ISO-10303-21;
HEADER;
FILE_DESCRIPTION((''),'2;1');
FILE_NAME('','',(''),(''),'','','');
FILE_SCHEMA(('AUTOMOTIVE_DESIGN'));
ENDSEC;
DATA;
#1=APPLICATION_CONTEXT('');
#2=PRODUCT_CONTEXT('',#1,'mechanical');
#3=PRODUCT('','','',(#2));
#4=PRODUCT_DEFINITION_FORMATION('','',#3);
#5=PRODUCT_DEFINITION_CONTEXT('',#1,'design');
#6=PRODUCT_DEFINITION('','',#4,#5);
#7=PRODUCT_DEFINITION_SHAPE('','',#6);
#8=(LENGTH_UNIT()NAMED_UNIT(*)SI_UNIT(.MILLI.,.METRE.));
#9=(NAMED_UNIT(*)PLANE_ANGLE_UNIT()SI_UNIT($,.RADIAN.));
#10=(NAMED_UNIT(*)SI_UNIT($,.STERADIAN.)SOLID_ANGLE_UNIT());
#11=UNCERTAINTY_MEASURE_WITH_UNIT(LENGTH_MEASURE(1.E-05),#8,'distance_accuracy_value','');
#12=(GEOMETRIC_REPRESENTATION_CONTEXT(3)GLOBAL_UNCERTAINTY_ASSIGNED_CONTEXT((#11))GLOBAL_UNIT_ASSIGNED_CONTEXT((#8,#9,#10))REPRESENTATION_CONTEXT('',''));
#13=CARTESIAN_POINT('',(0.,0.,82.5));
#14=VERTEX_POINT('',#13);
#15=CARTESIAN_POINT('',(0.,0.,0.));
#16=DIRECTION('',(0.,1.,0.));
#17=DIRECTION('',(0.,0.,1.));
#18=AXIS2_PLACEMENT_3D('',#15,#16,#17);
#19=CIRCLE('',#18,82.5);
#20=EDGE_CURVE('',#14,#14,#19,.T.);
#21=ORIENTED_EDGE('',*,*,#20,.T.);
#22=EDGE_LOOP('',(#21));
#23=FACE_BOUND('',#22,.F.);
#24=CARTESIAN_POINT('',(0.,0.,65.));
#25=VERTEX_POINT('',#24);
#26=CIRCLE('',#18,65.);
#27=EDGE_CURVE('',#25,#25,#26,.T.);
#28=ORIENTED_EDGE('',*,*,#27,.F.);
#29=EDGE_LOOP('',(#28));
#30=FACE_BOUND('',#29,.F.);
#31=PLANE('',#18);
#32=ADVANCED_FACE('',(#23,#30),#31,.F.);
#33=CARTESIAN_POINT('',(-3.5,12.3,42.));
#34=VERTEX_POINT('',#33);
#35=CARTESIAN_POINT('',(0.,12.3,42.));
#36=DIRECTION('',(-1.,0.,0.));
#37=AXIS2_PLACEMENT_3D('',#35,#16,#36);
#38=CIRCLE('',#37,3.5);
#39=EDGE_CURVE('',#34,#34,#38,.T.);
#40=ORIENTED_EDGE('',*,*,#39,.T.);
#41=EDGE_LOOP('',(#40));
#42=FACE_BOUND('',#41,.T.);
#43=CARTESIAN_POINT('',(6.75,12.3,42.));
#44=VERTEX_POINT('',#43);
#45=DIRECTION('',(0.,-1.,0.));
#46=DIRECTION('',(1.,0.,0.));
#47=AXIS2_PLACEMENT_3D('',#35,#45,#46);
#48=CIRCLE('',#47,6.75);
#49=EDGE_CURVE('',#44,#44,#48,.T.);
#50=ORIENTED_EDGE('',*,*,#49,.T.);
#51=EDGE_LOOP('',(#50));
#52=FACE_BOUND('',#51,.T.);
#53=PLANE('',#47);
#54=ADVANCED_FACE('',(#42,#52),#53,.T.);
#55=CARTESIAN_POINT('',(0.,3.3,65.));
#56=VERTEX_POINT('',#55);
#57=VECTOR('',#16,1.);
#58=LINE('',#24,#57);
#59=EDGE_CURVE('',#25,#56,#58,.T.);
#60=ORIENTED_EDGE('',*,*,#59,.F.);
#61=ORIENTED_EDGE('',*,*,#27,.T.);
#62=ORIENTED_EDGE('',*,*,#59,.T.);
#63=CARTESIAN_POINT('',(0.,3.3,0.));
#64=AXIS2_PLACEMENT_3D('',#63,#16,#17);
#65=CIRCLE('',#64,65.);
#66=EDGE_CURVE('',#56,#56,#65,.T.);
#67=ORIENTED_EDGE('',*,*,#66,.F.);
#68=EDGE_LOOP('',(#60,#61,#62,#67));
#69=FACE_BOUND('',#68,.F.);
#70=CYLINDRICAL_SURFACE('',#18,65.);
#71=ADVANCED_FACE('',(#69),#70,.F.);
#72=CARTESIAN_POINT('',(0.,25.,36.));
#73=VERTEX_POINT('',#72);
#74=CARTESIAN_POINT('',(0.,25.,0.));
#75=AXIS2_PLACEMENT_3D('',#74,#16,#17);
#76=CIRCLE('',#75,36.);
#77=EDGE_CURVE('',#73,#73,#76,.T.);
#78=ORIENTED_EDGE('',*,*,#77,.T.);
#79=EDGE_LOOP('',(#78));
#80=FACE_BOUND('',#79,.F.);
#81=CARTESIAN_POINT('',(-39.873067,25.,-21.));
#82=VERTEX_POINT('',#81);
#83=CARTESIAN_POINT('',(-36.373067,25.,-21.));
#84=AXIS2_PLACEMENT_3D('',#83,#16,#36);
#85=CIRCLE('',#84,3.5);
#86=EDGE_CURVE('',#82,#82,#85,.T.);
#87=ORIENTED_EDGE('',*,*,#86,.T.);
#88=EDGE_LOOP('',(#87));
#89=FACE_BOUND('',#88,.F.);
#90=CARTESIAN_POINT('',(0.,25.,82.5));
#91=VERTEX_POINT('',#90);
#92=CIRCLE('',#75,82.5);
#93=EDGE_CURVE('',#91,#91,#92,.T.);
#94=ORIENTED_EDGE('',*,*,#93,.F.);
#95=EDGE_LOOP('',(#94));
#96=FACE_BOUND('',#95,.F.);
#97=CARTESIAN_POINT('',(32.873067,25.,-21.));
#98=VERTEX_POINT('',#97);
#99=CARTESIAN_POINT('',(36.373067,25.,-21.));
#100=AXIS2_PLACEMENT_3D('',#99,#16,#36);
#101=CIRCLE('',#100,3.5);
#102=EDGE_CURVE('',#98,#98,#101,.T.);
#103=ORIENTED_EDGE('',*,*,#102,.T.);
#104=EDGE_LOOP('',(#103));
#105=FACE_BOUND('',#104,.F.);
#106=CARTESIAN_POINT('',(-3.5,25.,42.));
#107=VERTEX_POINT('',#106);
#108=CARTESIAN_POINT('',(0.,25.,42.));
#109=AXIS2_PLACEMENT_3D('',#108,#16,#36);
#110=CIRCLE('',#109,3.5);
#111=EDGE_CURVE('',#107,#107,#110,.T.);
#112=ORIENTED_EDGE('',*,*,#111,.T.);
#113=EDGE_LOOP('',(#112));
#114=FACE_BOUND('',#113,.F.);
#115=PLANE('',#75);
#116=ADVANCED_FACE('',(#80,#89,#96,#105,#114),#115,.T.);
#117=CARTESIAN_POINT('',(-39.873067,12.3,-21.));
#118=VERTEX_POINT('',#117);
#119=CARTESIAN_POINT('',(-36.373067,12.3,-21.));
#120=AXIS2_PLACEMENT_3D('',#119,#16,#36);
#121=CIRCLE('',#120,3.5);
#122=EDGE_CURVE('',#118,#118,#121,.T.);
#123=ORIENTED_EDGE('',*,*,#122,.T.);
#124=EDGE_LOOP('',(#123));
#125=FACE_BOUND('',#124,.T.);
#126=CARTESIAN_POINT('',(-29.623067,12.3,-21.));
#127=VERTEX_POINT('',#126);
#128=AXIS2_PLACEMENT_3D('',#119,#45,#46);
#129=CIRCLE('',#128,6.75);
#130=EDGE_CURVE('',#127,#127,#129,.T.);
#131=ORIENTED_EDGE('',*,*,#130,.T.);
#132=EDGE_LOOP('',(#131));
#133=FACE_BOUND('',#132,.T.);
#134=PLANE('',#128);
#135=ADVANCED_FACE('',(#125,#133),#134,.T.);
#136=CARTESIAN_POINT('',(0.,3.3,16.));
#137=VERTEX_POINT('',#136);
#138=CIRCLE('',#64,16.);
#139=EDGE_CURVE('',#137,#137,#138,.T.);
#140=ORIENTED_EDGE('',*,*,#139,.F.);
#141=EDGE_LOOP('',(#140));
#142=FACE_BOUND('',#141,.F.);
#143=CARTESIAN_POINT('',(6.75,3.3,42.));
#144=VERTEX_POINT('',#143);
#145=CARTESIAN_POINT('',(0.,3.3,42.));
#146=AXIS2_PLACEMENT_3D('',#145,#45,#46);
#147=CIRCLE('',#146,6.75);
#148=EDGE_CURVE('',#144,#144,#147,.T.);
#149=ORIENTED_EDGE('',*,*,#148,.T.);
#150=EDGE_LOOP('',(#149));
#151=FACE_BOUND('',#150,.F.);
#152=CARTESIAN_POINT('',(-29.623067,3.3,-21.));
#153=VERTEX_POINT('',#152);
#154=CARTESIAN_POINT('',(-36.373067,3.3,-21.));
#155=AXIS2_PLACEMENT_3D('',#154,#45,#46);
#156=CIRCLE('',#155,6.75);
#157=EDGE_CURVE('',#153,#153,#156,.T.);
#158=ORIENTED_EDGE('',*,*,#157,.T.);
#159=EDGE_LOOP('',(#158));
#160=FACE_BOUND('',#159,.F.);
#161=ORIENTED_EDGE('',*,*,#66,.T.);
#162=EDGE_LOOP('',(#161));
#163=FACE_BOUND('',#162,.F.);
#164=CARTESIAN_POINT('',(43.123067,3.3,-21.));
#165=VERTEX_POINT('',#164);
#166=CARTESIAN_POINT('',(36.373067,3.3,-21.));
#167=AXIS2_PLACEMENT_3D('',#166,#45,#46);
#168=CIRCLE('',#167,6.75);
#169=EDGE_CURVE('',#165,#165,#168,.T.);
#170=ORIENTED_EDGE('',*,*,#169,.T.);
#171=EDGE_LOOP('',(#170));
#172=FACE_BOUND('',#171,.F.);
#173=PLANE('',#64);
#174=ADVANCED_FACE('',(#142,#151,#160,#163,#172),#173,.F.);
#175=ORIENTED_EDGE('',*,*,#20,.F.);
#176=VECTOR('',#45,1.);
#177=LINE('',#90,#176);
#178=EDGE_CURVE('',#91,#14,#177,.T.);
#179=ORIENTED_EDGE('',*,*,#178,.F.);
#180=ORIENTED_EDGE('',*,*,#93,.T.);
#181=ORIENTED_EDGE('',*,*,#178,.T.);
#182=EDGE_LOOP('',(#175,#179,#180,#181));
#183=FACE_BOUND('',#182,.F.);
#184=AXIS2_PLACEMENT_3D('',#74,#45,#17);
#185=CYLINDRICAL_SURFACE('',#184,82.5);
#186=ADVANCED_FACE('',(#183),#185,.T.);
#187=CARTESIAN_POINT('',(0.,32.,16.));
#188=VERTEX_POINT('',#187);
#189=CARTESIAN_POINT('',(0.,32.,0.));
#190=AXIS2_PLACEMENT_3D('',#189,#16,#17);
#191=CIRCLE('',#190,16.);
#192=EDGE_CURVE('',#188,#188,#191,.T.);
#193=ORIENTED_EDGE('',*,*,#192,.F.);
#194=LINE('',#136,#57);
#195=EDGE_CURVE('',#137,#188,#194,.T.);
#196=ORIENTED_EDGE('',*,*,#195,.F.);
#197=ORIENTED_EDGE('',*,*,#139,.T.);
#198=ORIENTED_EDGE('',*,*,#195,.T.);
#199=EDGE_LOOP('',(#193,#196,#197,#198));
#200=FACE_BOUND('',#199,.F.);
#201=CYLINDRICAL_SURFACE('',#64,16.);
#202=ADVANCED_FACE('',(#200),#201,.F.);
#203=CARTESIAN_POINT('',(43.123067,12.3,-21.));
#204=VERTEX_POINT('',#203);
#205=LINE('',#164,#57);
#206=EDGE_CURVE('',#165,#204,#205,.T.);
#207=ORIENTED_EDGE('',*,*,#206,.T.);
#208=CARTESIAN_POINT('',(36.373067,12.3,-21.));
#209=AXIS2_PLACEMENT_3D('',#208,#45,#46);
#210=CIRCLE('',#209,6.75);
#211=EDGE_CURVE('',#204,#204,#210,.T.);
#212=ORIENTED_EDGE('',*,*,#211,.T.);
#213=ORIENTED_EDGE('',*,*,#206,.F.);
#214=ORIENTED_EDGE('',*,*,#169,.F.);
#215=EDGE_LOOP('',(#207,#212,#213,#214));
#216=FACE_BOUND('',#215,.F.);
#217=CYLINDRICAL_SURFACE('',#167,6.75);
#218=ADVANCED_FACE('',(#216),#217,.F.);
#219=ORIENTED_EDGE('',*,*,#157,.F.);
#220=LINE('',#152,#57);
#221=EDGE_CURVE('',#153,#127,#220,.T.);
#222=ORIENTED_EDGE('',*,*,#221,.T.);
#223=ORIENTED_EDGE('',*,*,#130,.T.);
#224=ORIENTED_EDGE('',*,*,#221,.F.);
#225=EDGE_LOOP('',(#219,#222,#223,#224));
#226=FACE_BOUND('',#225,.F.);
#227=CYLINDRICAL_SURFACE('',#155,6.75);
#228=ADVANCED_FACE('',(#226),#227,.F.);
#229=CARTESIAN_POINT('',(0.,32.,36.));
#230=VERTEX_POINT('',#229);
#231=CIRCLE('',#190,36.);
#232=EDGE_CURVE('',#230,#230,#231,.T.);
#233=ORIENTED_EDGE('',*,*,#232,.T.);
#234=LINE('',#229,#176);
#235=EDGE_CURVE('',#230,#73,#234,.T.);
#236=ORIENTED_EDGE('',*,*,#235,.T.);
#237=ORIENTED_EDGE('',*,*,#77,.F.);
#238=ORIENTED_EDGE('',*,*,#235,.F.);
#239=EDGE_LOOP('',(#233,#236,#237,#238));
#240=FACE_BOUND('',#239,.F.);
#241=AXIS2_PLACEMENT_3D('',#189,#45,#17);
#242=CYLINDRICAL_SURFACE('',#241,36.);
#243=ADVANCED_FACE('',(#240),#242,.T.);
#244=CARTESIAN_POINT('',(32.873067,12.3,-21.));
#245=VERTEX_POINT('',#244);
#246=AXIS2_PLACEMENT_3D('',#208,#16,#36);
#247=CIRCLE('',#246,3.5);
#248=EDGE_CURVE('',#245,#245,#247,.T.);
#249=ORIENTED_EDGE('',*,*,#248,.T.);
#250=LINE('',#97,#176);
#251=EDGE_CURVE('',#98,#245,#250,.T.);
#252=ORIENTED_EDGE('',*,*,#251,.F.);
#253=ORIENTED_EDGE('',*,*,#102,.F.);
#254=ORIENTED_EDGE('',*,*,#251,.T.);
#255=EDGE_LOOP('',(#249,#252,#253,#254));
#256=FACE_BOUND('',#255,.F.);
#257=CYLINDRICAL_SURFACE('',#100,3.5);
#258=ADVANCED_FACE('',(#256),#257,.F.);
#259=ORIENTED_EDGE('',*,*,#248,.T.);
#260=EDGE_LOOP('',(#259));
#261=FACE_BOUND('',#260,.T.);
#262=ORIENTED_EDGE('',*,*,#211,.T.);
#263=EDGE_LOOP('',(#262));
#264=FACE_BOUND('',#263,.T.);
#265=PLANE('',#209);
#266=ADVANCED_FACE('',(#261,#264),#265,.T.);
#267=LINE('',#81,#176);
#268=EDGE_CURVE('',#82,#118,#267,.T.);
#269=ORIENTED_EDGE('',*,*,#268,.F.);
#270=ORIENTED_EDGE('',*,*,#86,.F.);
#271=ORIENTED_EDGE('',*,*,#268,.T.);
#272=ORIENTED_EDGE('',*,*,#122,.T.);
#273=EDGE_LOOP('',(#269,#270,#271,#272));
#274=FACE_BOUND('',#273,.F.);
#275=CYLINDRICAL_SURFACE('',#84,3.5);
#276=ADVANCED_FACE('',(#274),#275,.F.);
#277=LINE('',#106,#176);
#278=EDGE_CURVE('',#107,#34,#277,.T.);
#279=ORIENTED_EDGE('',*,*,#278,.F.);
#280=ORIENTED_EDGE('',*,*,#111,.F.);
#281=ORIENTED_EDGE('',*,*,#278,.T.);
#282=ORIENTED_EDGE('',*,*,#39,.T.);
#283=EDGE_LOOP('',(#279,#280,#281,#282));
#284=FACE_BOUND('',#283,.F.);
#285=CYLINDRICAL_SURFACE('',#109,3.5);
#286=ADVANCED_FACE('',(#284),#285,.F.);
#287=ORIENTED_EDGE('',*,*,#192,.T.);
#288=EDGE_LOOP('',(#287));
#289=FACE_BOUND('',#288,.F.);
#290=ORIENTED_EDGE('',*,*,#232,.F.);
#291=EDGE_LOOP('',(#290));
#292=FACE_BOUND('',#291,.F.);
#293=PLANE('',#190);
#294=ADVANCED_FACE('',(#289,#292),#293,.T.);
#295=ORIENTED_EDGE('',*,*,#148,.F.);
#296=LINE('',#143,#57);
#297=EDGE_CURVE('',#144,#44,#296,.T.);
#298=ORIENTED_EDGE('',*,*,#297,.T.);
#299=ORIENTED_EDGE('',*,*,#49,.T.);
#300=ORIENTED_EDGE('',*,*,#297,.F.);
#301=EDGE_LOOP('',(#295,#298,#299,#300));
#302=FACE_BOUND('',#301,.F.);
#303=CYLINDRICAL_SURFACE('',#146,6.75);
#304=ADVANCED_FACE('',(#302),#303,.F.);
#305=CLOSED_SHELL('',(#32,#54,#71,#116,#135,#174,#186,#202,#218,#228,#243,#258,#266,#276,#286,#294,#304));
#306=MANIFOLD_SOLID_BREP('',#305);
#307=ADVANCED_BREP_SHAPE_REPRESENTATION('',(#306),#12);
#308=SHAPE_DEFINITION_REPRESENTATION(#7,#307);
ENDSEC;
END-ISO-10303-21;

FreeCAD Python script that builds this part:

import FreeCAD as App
import Part
import Sketcher

V = App.Vector

doc = App.newDocument("Part")
body = doc.addObject("PartDesign::Body", "Body")

# Sketch on YZ plane
sketch1 = body.newObject("Sketcher::SketchObject", "Sketch")
sketch1.AttachmentSupport = (doc.getObject("YZ_Plane"), [""])
sketch1.MapMode = "FlatFace"
sketch1.addGeometry([
    Part.LineSegment(V(3.3, 16, 0), V(32, 16, 0)),  # 0
    Part.LineSegment(V(32, 16, 0), V(32, 36, 0)),  # 1
    Part.LineSegment(V(32, 36, 0), V(25, 36, 0)),  # 2
    Part.LineSegment(V(25, 36, 0), V(25, 82.5, 0)),  # 3
    Part.LineSegment(V(25, 82.5, 0), V(0, 82.5, 0)),  # 4
    Part.LineSegment(V(0, 82.5, 0), V(0, 65, 0)),  # 5
    Part.LineSegment(V(0, 65, 0), V(3.3, 65, 0)),  # 6
    Part.LineSegment(V(3.3, 65, 0), V(3.3, 16, 0)),  # 7
], False)
sketch1.addConstraint([
    Sketcher.Constraint("Coincident", 0, 2, 1, 1),
    Sketcher.Constraint("Coincident", 1, 2, 2, 1),
    Sketcher.Constraint("Coincident", 2, 2, 3, 1),
    Sketcher.Constraint("Coincident", 3, 2, 4, 1),
    Sketcher.Constraint("Coincident", 4, 2, 5, 1),
    Sketcher.Constraint("Coincident", 5, 2, 6, 1),
    Sketcher.Constraint("Coincident", 6, 2, 7, 1),
    Sketcher.Constraint("Coincident", 7, 2, 0, 1),
    Sketcher.Constraint("Horizontal", 0),
    Sketcher.Constraint("Vertical", 1),
    Sketcher.Constraint("Horizontal", 2),
    Sketcher.Constraint("Vertical", 3),
    Sketcher.Constraint("Horizontal", 4),
    Sketcher.Constraint("Vertical", 5),
    Sketcher.Constraint("Horizontal", 6),
    Sketcher.Constraint("Vertical", 7),
    Sketcher.Constraint("PointOnObject", 4, 2, -2),
    Sketcher.Constraint("DistanceX", 2, 2, 2, 1, 7.0),
    Sketcher.Constraint("DistanceX", 4, 2, 4, 1, 25.0),
    Sketcher.Constraint("DistanceY", 1, 1, 1, 2, 20.0),
    Sketcher.Constraint("DistanceY", 7, 2, 7, 1, 49.0),
    Sketcher.Constraint("DistanceX", 0, 1, 0, 2, 28.7),
    Sketcher.Constraint("DistanceY", 3, 1, 3, 2, 46.5),
    Sketcher.Constraint("DistanceY", -1, 1, 0, 2, 16.0),
])
revolution = body.newObject("PartDesign::Revolution", "Revolution")
revolution.Profile = sketch1
revolution.ReferenceAxis = (sketch1, ["H_Axis"])
revolution.Angle = 360

# Sketch on XZ plane
sketch2 = body.newObject("Sketcher::SketchObject", "Sketch001")
sketch2.AttachmentSupport = (doc.getObject("XZ_Plane"), [""])
sketch2.MapMode = "FlatFace"
sketch2.AttachmentOffset = App.Placement(V(0, 0, -3.3), App.Rotation())
sketch2.addGeometry([
    Part.Circle(V(0, 42, 0), V(0, 0, 1), 7),
    Part.Circle(V(36, -21, 0), V(0, 0, 1), 7),
    Part.Circle(V(-36, -21, 0), V(0, 0, 1), 7),
], False)
sketch2.addConstraint([
    Sketcher.Constraint("Equal", 0, 1),
    Sketcher.Constraint("Equal", 1, 2),
    Sketcher.Constraint("Symmetric", 1, 3, 2, 3, -2),
    Sketcher.Constraint("PointOnObject", 0, 3, -2),
    Sketcher.Constraint("Diameter", 0, 13.5),
    Sketcher.Constraint("DistanceY", -1, 1, 0, 3, 42.0),
    Sketcher.Constraint("DistanceY", 1, 3, -1, 1, 21.0),
    Sketcher.Constraint("DistanceX", -1, 1, 1, 3, 36.373067),
])
pocket1 = body.newObject("PartDesign::Pocket", "Pocket")
pocket1.Profile = sketch2
pocket1.Length = 9

# Sketch on XZ plane
sketch3 = body.newObject("Sketcher::SketchObject", "Sketch002")
sketch3.AttachmentSupport = (doc.getObject("XZ_Plane"), [""])
sketch3.MapMode = "FlatFace"
sketch3.AttachmentOffset = App.Placement(V(0, 0, -25), App.Rotation())
sketch3.addGeometry([
    Part.Circle(V(0, 42, 0), V(0, 0, 1), 3.5),
    Part.Circle(V(36.4, -21, 0), V(0, 0, 1), 3.5),
    Part.Circle(V(-36.4, -21, 0), V(0, 0, 1), 3.5),
], False)
sketch3.addConstraint([
    Sketcher.Constraint("Equal", 0, 1),
    Sketcher.Constraint("Equal", 1, 2),
    Sketcher.Constraint("Symmetric", 1, 3, 2, 3, -2),
    Sketcher.Constraint("PointOnObject", 0, 3, -2),
    Sketcher.Constraint("Diameter", 0, 7.0),
    Sketcher.Constraint("DistanceY", -1, 1, 0, 3, 42.0),
    Sketcher.Constraint("DistanceY", 1, 3, -1, 1, 21.0),
    Sketcher.Constraint("DistanceX", -1, 1, 1, 3, 36.373067),
])
pocket2 = body.newObject("PartDesign::Pocket", "Pocket001")
pocket2.Profile = sketch3
pocket2.Type = "ThroughAll"
pocket2.Reversed = True

doc.recompute()
